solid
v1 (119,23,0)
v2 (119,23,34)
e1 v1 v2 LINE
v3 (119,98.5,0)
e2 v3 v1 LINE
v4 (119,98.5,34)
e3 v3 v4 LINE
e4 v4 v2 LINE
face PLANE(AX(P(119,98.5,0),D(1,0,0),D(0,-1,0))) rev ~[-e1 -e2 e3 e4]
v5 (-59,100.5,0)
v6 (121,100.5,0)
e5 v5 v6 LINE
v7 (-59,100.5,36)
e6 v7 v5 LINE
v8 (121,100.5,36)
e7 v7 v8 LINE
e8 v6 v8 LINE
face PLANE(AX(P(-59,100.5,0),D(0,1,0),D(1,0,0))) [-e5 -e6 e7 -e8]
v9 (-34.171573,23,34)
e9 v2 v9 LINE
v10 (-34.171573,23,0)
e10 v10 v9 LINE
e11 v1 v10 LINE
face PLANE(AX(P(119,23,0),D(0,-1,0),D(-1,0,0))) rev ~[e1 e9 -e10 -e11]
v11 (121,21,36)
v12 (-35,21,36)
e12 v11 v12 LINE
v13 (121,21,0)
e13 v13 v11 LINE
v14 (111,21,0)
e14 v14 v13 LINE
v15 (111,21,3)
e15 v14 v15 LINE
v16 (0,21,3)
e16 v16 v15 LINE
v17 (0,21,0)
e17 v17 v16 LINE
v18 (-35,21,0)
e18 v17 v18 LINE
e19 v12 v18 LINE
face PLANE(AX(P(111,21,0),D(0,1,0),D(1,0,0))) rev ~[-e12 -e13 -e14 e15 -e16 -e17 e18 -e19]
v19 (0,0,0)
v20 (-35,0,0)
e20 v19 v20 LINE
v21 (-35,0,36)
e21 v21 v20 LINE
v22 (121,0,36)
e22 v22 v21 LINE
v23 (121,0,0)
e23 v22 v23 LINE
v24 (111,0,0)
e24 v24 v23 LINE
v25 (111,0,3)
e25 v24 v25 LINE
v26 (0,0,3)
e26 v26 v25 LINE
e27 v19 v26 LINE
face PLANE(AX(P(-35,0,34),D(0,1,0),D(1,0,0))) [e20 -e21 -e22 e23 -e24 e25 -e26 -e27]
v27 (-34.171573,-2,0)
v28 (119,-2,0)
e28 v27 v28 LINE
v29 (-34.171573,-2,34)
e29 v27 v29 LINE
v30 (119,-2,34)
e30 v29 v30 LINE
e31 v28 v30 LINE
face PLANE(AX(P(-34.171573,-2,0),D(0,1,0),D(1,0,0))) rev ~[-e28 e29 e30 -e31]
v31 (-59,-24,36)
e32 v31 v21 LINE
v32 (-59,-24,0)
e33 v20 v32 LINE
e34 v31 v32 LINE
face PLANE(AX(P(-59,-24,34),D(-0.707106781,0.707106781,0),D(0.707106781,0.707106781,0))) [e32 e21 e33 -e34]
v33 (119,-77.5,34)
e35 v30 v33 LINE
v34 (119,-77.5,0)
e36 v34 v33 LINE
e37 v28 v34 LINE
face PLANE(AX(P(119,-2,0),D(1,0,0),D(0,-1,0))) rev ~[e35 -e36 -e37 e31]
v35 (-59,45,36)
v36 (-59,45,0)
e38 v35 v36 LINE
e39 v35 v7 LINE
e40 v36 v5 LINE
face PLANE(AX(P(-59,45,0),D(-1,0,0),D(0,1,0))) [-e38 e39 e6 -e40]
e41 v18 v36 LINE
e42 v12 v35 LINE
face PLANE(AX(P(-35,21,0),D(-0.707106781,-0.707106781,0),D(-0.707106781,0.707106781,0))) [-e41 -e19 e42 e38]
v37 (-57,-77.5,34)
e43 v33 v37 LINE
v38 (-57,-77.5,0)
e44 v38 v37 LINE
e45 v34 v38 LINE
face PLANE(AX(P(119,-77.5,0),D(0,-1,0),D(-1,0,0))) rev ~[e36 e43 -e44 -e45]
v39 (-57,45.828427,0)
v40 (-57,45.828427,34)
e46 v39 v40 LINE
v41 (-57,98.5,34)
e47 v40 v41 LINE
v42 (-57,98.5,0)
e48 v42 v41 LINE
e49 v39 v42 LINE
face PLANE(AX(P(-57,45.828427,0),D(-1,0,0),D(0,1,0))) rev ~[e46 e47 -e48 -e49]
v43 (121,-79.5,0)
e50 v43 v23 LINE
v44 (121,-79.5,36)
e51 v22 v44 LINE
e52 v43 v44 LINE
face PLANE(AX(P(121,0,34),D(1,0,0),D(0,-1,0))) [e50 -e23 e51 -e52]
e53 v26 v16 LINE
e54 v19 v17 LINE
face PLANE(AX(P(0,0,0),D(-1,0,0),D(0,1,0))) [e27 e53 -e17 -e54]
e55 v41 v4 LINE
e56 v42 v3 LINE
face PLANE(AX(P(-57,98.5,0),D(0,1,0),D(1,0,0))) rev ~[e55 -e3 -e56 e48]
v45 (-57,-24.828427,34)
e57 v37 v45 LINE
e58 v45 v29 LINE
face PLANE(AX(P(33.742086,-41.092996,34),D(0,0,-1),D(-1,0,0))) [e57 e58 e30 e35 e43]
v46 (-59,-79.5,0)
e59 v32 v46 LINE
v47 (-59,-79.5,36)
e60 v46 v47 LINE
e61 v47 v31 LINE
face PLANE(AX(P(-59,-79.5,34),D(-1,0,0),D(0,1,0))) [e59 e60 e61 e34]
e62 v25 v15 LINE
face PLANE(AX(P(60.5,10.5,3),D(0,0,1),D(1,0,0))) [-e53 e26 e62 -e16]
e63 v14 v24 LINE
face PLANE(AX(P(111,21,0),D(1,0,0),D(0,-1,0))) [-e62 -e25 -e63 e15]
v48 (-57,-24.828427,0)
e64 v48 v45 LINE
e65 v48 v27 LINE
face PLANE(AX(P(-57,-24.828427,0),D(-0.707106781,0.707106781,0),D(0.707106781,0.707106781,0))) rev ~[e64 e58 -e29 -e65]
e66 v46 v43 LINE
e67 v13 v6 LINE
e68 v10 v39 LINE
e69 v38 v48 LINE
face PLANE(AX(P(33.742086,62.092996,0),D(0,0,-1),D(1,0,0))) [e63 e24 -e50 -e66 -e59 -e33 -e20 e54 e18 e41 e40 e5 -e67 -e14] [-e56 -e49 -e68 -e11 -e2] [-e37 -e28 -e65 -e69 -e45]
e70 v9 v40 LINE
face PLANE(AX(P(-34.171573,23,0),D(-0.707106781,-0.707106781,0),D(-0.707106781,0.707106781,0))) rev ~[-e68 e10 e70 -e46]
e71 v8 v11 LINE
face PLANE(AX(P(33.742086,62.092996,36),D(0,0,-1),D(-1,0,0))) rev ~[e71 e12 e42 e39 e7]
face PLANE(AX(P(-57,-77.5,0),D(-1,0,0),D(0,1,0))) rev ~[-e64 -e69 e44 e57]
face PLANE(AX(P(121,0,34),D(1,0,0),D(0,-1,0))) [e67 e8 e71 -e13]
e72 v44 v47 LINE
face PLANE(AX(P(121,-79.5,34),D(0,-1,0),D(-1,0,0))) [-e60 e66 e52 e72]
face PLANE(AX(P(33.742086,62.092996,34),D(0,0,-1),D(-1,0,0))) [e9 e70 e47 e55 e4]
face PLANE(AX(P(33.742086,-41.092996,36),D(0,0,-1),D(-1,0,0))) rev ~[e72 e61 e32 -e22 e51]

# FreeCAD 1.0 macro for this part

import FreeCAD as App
import Part
import Sketcher

V = App.Vector

doc = App.newDocument("Part")
body = doc.addObject("PartDesign::Body", "Body")

# Sketch on XY plane
sketch1 = body.newObject("Sketcher::SketchObject", "Sketch")
sketch1.AttachmentSupport = (doc.getObject("XY_Plane"), [""])
sketch1.MapMode = "FlatFace"
sketch1.addGeometry([
    Part.LineSegment(V(0, 21, 0), V(0, 0, 0)),
    Part.LineSegment(V(0, 0, 0), V(121, 0, 0)),
    Part.LineSegment(V(121, 0, 0), V(121, 21, 0)),
    Part.LineSegment(V(121, 21, 0), V(0, 21, 0)),
], False)
sketch1.addConstraint([
    Sketcher.Constraint("Coincident", 0, 2, 1, 1),
    Sketcher.Constraint("Coincident", 1, 2, 2, 1),
    Sketcher.Constraint("Coincident", 2, 2, 3, 1),
    Sketcher.Constraint("Coincident", 3, 2, 0, 1),
    Sketcher.Constraint("Vertical", 0),
    Sketcher.Constraint("Horizontal", 1),
    Sketcher.Constraint("Vertical", 2),
    Sketcher.Constraint("Horizontal", 3),
    Sketcher.Constraint("Coincident", 0, 2, -1, 1),
    Sketcher.Constraint("DistanceX", 1, 1, 1, 2, 121.0),
    Sketcher.Constraint("DistanceY", 0, 2, 0, 1, 21.0),
])
pad1 = body.newObject("PartDesign::Pad", "Pad")
pad1.Profile = sketch1
pad1.Length = 3

# Sketch on XY plane
sketch2 = body.newObject("Sketcher::SketchObject", "Sketch001")
sketch2.AttachmentSupport = (doc.getObject("XY_Plane"), [""])
sketch2.MapMode = "FlatFace"
sketch2.addGeometry([
    Part.LineSegment(V(121, 100, 0), V(121, 21, 0)),  # 0
    Part.LineSegment(V(121, 21, 0), V(-35, 21, 0)),  # 1
    Part.LineSegment(V(-35, 21, 0), V(-59, 45, 0)),  # 2
    Part.LineSegment(V(-59, 45, 0), V(-59, 100, 0)),  # 3
    Part.LineSegment(V(-59, 100, 0), V(121, 100, 0)),  # 4
    Part.LineSegment(V(119, 23, 0), V(119, 98, 0)),  # 5
    Part.LineSegment(V(119, 98, 0), V(-57, 98, 0)),  # 6
    Part.LineSegment(V(-57, 98, 0), V(-57, 46, 0)),  # 7
    Part.LineSegment(V(-57, 46, 0), V(-34, 23, 0)),  # 8
    Part.LineSegment(V(-34, 23, 0), V(119, 23, 0)),  # 9
    Part.LineSegment(V(-35, 0, 0), V(121, 0, 0)),  # 10
    Part.LineSegment(V(121, 0, 0), V(121, -80, 0)),  # 11
    Part.LineSegment(V(121, -80, 0), V(-59, -80, 0)),  # 12
    Part.LineSegment(V(-59, -80, 0), V(-59, -24, 0)),  # 13
    Part.LineSegment(V(-59, -24, 0), V(-35, 0, 0)),  # 14
    Part.LineSegment(V(-57, -78, 0), V(119, -78, 0)),  # 15
    Part.LineSegment(V(119, -78, 0), V(119, -2, 0)),  # 16
    Part.LineSegment(V(119, -2, 0), V(-34, -2, 0)),  # 17
    Part.LineSegment(V(-34, -2, 0), V(-57, -25, 0)),  # 18
    Part.LineSegment(V(-57, -25, 0), V(-57, -78, 0)),  # 19
], False)
sketch2.addConstraint([
    Sketcher.Constraint("Coincident", 0, 2, 1, 1),
    Sketcher.Constraint("Coincident", 1, 2, 2, 1),
    Sketcher.Constraint("Coincident", 2, 2, 3, 1),
    Sketcher.Constraint("Coincident", 3, 2, 4, 1),
    Sketcher.Constraint("Coincident", 4, 2, 0, 1),
    Sketcher.Constraint("Coincident", 5, 2, 6, 1),
    Sketcher.Constraint("Coincident", 6, 2, 7, 1),
    Sketcher.Constraint("Coincident", 7, 2, 8, 1),
    Sketcher.Constraint("Coincident", 8, 2, 9, 1),
    Sketcher.Constraint("Coincident", 9, 2, 5, 1),
    Sketcher.Constraint("Coincident", 10, 2, 11, 1),
    Sketcher.Constraint("Coincident", 11, 2, 12, 1),
    Sketcher.Constraint("Coincident", 12, 2, 13, 1),
    Sketcher.Constraint("Coincident", 13, 2, 14, 1),
    Sketcher.Constraint("Coincident", 14, 2, 10, 1),
    Sketcher.Constraint("Coincident", 15, 2, 16, 1),
    Sketcher.Constraint("Coincident", 16, 2, 17, 1),
    Sketcher.Constraint("Coincident", 17, 2, 18, 1),
    Sketcher.Constraint("Coincident", 18, 2, 19, 1),
    Sketcher.Constraint("Coincident", 19, 2, 15, 1),
    Sketcher.Constraint("Vertical", 0),
    Sketcher.Constraint("Horizontal", 1),
    Sketcher.Constraint("Vertical", 3),
    Sketcher.Constraint("Horizontal", 4),
    Sketcher.Constraint("Vertical", 5),
    Sketcher.Constraint("Horizontal", 6),
    Sketcher.Constraint("Vertical", 7),
    Sketcher.Constraint("Horizontal", 9),
    Sketcher.Constraint("Horizontal", 10),
    Sketcher.Constraint("Vertical", 11),
    Sketcher.Constraint("Horizontal", 12),
    Sketcher.Constraint("Vertical", 13),
    Sketcher.Constraint("Horizontal", 15),
    Sketcher.Constraint("Vertical", 16),
    Sketcher.Constraint("Horizontal", 17),
    Sketcher.Constraint("Vertical", 19),
    Sketcher.Constraint("PointOnObject", 10, 2, -1),
    Sketcher.Constraint("Parallel", 2, 8),
    Sketcher.Constraint("Perpendicular", 8, 14),
    Sketcher.Constraint("Parallel", 14, 18),
    Sketcher.Constraint("Vertical", 4, 2, 10, 2),
    Sketcher.Constraint("Vertical", 3, 2, 12, 2),
    Sketcher.Constraint("Vertical", 1, 2, 14, 2),
    Sketcher.Constraint("Vertical", 9, 2, 15, 2),
    Sketcher.Constraint("Vertical", 8, 2, 17, 2),
    Sketcher.Constraint("Vertical", 7, 2, 18, 2),
    Sketcher.Constraint("Equal", 0, 11),
    Sketcher.Constraint("Equal", 3, 13),
    Sketcher.Constraint("Equal", 5, 16),
    Sketcher.Constraint("DistanceX", 1, 2, 1, 1, 156.0),
    Sketcher.Constraint("DistanceX", 4, 1, 4, 2, 180.0),
    Sketcher.Constraint("DistanceX", 6, 2, 6, 1, 176.0),
    Sketcher.Constraint("DistanceY", 0, 2, 0, 1, 79.5),
    Sketcher.Constraint("DistanceY", 5, 1, 5, 2, 75.5),
    Sketcher.Constraint("DistanceX", -1, 1, 0, 2, 121.0),
    Sketcher.Constraint("DistanceY", -1, 1, 0, 2, 21.0),
    Sketcher.Constraint("DistanceX", -1, 1, 5, 2, 119.0),
    Sketcher.Constraint("DistanceY", -1, 1, 8, 2, 23.0),
    Sketcher.Constraint("DistanceY", 16, 2, -1, 1, 2.0),
    Sketcher.Constraint("Distance", 8, 32.284271),
])
pad2 = body.newObject("PartDesign::Pad", "Pad001")
pad2.Profile = sketch2
pad2.Length = 34

# Sketch on XY plane
sketch3 = body.newObject("Sketcher::SketchObject", "Sketch002")
sketch3.AttachmentSupport = (doc.getObject("XY_Plane"), [""])
sketch3.MapMode = "FlatFace"
sketch3.AttachmentOffset = App.Placement(V(0, 0, 34), App.Rotation())
sketch3.addGeometry([
    Part.LineSegment(V(-59, -24, 0), V(-59, -80, 0)),  # 0
    Part.LineSegment(V(-59, -80, 0), V(121, -80, 0)),  # 1
    Part.LineSegment(V(121, -80, 0), V(121, 0, 0)),  # 2
    Part.LineSegment(V(121, 0, 0), V(-35, 0, 0)),  # 3
    Part.LineSegment(V(-35, 0, 0), V(-59, -24, 0)),  # 4
    Part.LineSegment(V(-59, 45, 0), V(-35, 21, 0)),  # 5
    Part.LineSegment(V(-35, 21, 0), V(121, 21, 0)),  # 6
    Part.LineSegment(V(121, 21, 0), V(121, 100, 0)),  # 7
    Part.LineSegment(V(121, 100, 0), V(-59, 100, 0)),  # 8
    Part.LineSegment(V(-59, 100, 0), V(-59, 45, 0)),  # 9
], False)
sketch3.addConstraint([
    Sketcher.Constraint("Coincident", 0, 2, 1, 1),
    Sketcher.Constraint("Coincident", 1, 2, 2, 1),
    Sketcher.Constraint("Coincident", 2, 2, 3, 1),
    Sketcher.Constraint("Coincident", 3, 2, 4, 1),
    Sketcher.Constraint("Coincident", 4, 2, 0, 1),
    Sketcher.Constraint("Coincident", 5, 2, 6, 1),
    Sketcher.Constraint("Coincident", 6, 2, 7, 1),
    Sketcher.Constraint("Coincident", 7, 2, 8, 1),
    Sketcher.Constraint("Coincident", 8, 2, 9, 1),
    Sketcher.Constraint("Coincident", 9, 2, 5, 1),
    Sketcher.Constraint("Vertical", 0),
    Sketcher.Constraint("Horizontal", 1),
    Sketcher.Constraint("Vertical", 2),
    Sketcher.Constraint("Horizontal", 3),
    Sketcher.Constraint("Horizontal", 6),
    Sketcher.Constraint("Vertical", 7),
    Sketcher.Constraint("Horizontal", 8),
    Sketcher.Constraint("Vertical", 9),
    Sketcher.Constraint("PointOnObject", 2, 2, -1),
    Sketcher.Constraint("Perpendicular", 4, 5),
    Sketcher.Constraint("Vertical", 3, 2, 5, 2),
    Sketcher.Constraint("Vertical", 2, 2, 6, 2),
    Sketcher.Constraint("Vertical", 4, 2, 8, 2),
    Sketcher.Constraint("Equal", 2, 7),
    Sketcher.Constraint("Equal", 0, 9),
    Sketcher.Constraint("DistanceX", 1, 1, 1, 2, 180.0),
    Sketcher.Constraint("DistanceX", 3, 2, 3, 1, 156.0),
    Sketcher.Constraint("DistanceY", 0, 2, 0, 1, 55.5),
    Sketcher.Constraint("DistanceX", 0, 2, -1, 1, 59.0),
    Sketcher.Constraint("DistanceY", -1, 1, 5, 2, 21.0),
])
pad3 = body.newObject("PartDesign::Pad", "Pad002")
pad3.Profile = sketch3
pad3.Length = 2

# Sketch on XY plane
sketch4 = body.newObject("Sketcher::SketchObject", "Sketch003")
sketch4.AttachmentSupport = (doc.getObject("XY_Plane"), [""])
sketch4.MapMode = "FlatFace"
sketch4.addGeometry([
    Part.LineSegment(V(111, 0, 0), V(111, 21, 0)),
    Part.LineSegment(V(111, 21, 0), V(121, 21, 0)),
    Part.LineSegment(V(121, 21, 0), V(121, 0, 0)),
    Part.LineSegment(V(121, 0, 0), V(111, 0, 0)),
], False)
sketch4.addConstraint([
    Sketcher.Constraint("Coincident", 0, 2, 1, 1),
    Sketcher.Constraint("Coincident", 1, 2, 2, 1),
    Sketcher.Constraint("Coincident", 2, 2, 3, 1),
    Sketcher.Constraint("Coincident", 3, 2, 0, 1),
    Sketcher.Constraint("Vertical", 0),
    Sketcher.Constraint("Horizontal", 1),
    Sketcher.Constraint("Vertical", 2),
    Sketcher.Constraint("Horizontal", 3),
    Sketcher.Constraint("PointOnObject", 2, 2, -1),
    Sketcher.Constraint("DistanceX", 1, 1, 1, 2, 10.0),
    Sketcher.Constraint("DistanceY", 0, 1, 0, 2, 21.0),
    Sketcher.Constraint("DistanceX", -1, 1, 0, 2, 111.0),
])
pocket1 = body.newObject("PartDesign::Pocket", "Pocket")
pocket1.Profile = sketch4
pocket1.Type = "ThroughAll"
pocket1.Reversed = True

doc.recompute()
